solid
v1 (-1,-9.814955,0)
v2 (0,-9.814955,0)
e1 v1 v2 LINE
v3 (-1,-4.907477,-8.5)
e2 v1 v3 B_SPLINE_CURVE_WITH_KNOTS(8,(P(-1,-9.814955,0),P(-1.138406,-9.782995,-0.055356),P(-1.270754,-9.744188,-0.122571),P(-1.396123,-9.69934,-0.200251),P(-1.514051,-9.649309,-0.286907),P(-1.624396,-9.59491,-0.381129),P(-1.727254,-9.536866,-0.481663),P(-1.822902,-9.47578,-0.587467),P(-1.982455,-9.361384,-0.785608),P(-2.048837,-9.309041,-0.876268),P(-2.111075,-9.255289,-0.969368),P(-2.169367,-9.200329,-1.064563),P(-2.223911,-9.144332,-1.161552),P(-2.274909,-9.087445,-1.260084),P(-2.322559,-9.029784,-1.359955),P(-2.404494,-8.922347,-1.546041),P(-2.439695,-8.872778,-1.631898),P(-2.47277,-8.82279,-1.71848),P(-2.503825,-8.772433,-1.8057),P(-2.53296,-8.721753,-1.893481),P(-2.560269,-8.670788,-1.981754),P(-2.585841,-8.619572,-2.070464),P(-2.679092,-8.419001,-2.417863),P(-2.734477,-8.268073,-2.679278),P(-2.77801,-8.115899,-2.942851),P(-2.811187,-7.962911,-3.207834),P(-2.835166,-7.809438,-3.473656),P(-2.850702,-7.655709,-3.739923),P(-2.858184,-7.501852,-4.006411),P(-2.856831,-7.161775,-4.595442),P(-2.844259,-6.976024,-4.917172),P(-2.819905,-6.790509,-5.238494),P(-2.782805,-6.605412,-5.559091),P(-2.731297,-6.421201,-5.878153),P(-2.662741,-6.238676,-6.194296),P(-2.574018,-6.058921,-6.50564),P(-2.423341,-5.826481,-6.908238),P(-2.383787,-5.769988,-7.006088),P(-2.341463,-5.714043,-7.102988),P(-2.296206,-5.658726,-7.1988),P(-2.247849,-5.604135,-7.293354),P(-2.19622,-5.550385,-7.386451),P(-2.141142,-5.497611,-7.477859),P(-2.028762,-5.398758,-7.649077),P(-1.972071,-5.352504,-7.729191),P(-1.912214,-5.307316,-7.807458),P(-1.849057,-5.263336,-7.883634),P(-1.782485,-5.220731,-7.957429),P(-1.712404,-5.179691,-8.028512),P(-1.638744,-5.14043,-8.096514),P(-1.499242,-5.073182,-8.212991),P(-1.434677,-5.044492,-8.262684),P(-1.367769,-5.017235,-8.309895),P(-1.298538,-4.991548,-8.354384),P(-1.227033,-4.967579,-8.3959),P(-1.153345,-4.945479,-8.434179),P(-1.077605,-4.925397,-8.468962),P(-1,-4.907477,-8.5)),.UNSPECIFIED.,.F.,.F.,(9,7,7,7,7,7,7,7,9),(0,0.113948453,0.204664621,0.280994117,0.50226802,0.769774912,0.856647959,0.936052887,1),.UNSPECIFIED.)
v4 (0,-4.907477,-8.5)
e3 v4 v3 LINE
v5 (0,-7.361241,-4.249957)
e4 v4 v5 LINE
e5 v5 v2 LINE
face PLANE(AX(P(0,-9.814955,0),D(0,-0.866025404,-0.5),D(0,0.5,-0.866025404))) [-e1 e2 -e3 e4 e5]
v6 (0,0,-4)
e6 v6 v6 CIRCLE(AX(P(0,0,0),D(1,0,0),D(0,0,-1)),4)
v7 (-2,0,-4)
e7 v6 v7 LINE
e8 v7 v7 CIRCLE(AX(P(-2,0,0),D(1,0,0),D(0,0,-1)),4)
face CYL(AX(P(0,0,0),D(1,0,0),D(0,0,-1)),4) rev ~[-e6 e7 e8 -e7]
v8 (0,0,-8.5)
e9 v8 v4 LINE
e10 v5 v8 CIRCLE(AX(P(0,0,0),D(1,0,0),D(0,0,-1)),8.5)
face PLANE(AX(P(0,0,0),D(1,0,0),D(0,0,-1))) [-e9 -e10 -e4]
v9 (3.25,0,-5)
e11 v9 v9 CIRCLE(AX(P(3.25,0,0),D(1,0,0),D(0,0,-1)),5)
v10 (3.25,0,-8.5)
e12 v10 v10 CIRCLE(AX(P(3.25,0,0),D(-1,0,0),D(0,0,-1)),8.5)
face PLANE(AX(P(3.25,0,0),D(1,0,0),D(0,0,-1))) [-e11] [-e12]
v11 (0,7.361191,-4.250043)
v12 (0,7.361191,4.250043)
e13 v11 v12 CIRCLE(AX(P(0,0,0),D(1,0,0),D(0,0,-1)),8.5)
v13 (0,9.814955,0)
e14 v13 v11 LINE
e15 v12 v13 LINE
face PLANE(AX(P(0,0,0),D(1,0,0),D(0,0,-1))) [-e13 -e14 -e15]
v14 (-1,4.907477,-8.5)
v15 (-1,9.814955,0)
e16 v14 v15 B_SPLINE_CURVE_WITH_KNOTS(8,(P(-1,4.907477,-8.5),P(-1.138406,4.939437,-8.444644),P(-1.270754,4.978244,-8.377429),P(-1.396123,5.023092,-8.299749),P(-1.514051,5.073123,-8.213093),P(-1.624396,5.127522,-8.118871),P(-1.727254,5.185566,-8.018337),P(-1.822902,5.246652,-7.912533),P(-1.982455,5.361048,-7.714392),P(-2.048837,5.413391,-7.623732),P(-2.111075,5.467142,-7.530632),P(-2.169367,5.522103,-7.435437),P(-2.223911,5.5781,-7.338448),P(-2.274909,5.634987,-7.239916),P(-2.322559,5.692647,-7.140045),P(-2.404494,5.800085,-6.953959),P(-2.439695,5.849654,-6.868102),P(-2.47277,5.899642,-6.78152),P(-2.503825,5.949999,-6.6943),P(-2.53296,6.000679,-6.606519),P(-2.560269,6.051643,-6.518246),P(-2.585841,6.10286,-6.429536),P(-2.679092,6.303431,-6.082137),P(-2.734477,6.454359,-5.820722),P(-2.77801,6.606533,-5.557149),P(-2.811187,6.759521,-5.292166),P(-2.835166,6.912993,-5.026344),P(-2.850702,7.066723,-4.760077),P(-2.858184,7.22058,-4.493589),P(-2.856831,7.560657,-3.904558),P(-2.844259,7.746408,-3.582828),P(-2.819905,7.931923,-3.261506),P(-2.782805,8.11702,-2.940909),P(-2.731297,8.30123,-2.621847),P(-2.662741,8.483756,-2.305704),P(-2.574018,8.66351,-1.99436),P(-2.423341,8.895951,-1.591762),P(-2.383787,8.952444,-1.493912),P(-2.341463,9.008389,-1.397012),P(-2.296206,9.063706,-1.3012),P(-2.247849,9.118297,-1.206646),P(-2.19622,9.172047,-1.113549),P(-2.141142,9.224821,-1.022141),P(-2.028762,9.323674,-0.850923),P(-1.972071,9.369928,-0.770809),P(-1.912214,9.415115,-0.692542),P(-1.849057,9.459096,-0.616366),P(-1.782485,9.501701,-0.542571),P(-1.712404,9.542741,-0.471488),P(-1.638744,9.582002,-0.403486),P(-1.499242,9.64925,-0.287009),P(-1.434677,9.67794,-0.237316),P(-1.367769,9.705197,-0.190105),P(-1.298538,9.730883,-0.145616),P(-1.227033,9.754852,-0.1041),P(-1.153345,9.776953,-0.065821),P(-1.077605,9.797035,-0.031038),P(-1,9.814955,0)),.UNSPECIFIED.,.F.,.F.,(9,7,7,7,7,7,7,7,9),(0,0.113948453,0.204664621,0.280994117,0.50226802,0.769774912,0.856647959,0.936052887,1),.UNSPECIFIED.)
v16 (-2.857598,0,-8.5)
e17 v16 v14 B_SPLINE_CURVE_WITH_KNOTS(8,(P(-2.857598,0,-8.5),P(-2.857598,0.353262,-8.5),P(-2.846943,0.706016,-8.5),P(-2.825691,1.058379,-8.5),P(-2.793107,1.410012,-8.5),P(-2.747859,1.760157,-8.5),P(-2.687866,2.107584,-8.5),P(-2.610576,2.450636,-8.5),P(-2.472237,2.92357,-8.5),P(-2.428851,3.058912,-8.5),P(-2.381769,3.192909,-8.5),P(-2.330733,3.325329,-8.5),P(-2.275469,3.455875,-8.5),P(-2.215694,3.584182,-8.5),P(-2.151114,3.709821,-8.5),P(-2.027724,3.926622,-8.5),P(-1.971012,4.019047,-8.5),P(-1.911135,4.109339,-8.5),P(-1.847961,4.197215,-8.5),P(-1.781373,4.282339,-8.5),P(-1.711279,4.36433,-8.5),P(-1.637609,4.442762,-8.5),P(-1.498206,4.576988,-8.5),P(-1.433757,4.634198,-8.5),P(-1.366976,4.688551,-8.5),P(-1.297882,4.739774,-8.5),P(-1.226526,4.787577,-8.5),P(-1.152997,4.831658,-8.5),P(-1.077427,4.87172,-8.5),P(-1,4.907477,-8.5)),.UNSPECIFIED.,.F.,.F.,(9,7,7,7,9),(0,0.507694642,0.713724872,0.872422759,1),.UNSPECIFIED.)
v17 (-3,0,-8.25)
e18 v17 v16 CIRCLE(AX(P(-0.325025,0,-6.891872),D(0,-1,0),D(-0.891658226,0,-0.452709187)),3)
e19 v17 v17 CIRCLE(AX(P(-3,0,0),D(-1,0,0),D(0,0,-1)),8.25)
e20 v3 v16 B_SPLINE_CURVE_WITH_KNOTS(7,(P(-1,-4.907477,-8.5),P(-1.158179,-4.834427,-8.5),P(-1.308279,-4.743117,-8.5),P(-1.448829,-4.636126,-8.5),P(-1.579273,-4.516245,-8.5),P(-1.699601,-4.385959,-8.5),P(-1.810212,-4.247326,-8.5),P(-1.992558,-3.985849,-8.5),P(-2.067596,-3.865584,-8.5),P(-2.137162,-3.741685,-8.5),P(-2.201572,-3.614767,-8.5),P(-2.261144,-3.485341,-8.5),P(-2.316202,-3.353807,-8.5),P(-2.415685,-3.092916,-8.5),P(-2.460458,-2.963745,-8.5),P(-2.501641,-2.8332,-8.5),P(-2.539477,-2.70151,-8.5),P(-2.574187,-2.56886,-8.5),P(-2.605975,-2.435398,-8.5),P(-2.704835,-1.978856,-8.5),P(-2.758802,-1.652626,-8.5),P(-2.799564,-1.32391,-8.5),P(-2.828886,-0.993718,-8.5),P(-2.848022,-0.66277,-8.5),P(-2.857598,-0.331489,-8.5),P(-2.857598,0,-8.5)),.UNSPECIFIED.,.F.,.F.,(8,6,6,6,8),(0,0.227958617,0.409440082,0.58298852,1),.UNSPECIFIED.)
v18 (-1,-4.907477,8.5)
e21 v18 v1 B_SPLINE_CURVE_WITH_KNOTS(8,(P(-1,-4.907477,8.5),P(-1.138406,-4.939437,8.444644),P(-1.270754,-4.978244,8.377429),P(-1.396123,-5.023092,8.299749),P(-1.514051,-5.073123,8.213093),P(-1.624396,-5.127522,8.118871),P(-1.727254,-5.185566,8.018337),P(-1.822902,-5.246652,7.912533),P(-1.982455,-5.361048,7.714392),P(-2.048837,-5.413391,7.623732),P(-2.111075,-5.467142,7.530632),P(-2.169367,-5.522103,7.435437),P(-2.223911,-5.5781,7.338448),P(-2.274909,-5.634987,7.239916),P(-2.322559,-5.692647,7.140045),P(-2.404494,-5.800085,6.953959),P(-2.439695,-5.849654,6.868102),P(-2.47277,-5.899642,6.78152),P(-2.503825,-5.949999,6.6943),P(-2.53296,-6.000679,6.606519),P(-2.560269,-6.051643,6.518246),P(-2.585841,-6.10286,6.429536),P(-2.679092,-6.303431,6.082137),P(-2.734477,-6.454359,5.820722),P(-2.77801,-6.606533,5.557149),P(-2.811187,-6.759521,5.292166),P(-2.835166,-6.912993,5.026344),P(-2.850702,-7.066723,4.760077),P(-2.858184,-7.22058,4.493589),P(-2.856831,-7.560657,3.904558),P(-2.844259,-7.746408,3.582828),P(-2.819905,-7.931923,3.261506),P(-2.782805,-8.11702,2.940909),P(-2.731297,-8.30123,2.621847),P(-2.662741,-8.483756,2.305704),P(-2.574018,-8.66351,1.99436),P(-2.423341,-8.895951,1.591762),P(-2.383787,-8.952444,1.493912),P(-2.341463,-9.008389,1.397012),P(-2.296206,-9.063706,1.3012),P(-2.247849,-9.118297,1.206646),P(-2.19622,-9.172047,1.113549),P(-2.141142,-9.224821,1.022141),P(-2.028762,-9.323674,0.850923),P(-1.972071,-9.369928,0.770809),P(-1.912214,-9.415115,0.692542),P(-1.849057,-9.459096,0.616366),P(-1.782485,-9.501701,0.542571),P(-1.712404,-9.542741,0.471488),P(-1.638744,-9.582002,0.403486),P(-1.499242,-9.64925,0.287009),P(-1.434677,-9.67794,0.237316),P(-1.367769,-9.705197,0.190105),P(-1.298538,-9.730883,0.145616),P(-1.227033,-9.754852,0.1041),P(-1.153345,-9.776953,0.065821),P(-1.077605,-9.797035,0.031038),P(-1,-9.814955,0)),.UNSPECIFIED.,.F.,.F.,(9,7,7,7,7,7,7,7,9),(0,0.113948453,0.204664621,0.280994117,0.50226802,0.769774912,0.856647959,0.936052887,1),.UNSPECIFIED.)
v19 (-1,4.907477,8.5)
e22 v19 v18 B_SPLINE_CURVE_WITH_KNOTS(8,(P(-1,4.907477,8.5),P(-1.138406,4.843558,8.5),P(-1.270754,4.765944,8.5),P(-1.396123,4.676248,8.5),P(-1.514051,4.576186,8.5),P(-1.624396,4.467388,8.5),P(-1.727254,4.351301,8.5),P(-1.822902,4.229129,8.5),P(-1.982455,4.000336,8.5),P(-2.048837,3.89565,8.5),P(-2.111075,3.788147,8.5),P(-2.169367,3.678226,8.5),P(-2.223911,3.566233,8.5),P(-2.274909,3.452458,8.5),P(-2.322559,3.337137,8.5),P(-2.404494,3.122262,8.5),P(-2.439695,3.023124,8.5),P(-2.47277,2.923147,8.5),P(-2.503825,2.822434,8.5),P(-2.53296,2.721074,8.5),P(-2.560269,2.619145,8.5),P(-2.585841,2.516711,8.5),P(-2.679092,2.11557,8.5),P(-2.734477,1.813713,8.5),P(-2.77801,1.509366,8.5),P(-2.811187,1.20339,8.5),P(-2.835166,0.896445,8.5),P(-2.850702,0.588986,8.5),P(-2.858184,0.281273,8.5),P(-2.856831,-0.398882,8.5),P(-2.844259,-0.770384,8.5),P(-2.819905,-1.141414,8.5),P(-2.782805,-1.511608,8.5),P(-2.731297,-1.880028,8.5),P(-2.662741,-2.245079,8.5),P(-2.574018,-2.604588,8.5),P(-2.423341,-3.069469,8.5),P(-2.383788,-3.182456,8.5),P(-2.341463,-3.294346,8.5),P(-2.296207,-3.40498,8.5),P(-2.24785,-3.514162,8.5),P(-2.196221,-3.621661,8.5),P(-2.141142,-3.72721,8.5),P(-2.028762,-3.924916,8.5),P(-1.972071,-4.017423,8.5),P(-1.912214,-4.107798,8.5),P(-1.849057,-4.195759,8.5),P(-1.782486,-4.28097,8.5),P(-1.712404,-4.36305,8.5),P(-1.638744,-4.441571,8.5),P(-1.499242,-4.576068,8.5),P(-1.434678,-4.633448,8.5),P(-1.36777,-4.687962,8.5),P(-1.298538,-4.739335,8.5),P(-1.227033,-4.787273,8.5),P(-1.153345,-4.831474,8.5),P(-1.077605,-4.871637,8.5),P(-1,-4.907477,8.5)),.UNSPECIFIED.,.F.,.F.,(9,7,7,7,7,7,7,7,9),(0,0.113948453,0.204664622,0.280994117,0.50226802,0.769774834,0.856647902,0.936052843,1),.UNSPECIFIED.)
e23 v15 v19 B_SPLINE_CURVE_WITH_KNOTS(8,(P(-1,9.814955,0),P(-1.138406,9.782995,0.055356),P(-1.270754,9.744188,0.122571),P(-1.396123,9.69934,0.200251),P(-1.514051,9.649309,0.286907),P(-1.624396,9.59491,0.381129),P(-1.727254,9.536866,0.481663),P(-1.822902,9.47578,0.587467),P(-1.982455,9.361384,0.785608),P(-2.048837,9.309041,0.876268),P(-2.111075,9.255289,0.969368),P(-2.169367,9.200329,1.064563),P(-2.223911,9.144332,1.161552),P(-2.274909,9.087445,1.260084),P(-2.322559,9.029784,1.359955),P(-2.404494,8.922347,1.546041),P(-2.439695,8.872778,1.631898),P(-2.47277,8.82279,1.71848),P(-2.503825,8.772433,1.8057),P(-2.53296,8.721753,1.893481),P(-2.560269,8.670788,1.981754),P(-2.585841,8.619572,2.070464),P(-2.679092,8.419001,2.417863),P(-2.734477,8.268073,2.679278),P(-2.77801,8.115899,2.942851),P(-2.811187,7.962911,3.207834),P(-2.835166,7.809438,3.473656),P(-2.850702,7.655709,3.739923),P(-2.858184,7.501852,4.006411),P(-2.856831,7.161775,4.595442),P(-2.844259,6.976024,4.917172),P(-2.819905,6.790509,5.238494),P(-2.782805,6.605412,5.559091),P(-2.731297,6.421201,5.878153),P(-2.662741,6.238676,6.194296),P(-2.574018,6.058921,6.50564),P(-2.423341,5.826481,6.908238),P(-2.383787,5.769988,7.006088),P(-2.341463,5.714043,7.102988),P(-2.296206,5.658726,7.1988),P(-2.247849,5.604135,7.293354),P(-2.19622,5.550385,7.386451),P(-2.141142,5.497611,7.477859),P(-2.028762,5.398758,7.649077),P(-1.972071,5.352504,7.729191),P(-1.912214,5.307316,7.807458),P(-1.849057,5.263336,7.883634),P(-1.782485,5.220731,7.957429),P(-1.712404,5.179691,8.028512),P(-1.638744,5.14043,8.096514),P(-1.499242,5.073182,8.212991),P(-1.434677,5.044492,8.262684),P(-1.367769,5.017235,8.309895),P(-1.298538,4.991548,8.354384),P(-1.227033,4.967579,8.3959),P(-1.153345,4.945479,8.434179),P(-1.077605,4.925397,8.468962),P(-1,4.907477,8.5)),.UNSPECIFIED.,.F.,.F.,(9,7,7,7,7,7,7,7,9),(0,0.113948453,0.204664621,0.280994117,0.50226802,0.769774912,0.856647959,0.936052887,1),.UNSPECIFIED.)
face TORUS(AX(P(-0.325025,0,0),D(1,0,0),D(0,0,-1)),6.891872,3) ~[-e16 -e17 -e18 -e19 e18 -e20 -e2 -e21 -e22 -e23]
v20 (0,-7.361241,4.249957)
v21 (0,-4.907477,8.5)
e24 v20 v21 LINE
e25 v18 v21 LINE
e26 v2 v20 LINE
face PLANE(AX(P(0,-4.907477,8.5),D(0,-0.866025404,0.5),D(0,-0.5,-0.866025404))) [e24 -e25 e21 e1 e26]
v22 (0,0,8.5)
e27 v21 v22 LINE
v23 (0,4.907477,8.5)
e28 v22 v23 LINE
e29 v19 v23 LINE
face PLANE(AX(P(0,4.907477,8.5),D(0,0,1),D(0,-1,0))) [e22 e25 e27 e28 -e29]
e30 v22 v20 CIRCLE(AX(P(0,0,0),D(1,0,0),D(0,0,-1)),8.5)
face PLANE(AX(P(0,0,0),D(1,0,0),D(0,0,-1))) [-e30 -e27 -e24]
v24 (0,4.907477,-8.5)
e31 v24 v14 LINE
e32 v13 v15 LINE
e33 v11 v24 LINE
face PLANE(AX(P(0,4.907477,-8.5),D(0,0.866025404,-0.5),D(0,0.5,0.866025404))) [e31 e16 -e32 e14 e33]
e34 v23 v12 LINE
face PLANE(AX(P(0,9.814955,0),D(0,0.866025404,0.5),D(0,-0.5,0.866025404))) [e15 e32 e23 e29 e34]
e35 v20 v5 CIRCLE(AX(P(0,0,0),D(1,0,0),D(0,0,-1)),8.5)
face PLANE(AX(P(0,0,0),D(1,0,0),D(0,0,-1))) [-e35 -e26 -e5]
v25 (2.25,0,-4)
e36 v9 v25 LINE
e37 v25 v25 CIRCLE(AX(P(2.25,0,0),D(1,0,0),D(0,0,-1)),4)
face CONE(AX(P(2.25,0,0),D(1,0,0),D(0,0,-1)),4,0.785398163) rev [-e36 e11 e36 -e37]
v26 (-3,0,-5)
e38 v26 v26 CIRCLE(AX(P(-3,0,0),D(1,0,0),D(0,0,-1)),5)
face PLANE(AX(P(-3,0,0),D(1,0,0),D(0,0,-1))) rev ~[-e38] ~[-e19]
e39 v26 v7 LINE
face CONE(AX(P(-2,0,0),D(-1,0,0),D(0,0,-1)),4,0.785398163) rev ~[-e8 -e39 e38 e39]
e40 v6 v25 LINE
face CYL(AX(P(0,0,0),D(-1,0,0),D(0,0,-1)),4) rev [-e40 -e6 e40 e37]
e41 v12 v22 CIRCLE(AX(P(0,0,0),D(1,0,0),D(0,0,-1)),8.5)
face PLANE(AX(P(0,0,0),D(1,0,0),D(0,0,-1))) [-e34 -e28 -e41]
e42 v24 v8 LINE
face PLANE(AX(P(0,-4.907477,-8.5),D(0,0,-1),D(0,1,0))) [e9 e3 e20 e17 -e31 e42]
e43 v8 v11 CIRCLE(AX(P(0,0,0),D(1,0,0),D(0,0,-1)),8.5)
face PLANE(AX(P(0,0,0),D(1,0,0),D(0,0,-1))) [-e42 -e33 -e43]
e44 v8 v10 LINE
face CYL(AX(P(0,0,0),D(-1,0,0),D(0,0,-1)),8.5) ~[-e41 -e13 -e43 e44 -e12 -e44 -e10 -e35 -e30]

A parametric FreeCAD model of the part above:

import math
import FreeCAD as App
import Part
import Sketcher

V = App.Vector
Q = App.Units.Quantity


def edges_at(feature, points):
    """Names of the edges that pass closest to the given points."""
    edges = feature.Shape.Edges
    near = lambda p: min(range(len(edges)), key=lambda i: edges[i].distToShape(Part.Vertex(*p))[0])
    return sorted({f"Edge{near(p) + 1}" for p in points})

doc = App.newDocument("Part")
body = doc.addObject("PartDesign::Body", "Body")

sketch1 = body.newObject("Sketcher::SketchObject", "Sketch")
sketch1.AttachmentSupport = (doc.getObject("YZ_Plane"), [""])
sketch1.MapMode = "FlatFace"
sketch1.addGeometry([
    Part.LineSegment(V(9.8, 0, 0), V(4.9, 8.5, 0)),
    Part.LineSegment(V(4.9, 8.5, 0), V(-4.9, 8.5, 0)),
    Part.LineSegment(V(-4.9, 8.5, 0), V(-9.8, 0, 0)),
    Part.LineSegment(V(-9.8, 0, 0), V(-4.9, -8.5, 0)),
    Part.LineSegment(V(-4.9, -8.5, 0), V(4.9, -8.5, 0)),
    Part.LineSegment(V(4.9, -8.5, 0), V(9.8, 0, 0)),
    Part.Circle(V(0, 0, 0), V(0, 0, 1), 4),
], False)
sketch1.addConstraint([
    Sketcher.Constraint("Coincident", 0, 2, 1, 1),
    Sketcher.Constraint("Coincident", 1, 2, 2, 1),
    Sketcher.Constraint("Coincident", 2, 2, 3, 1),
    Sketcher.Constraint("Coincident", 3, 2, 4, 1),
    Sketcher.Constraint("Coincident", 4, 2, 5, 1),
    Sketcher.Constraint("Coincident", 5, 2, 0, 1),
    Sketcher.Constraint("Horizontal", 1),
    Sketcher.Constraint("Horizontal", 4),
    Sketcher.Constraint("Coincident", 6, 3, -1, 1),
    Sketcher.Constraint("Symmetric", 0, 2, 3, 2, -1, 1),
    Sketcher.Constraint("Symmetric", 2, 2, 5, 2, -1, 1),
    Sketcher.Constraint("PointOnObject", 2, 2, -1),
    Sketcher.Constraint("Parallel", 2, 5),
    Sketcher.Constraint("Vertical", 1, 2, 3, 2),
    Sketcher.Constraint("Diameter", 6, Q("8 mm")),
    Sketcher.Constraint("Angle", 0, Q("120 deg")),
    Sketcher.Constraint("DistanceY", 3, 2, 1, 2, Q("17 mm")),
    Sketcher.Constraint("DistanceX", 1, 2, 1, 1, Q("9.814955 mm")),
])
pad1 = body.newObject("PartDesign::Pad", "Pad")
pad1.Profile = sketch1
pad1.Type = "TwoLengths"
pad1.Length = 3.25
pad1.Length2 = 3

sketch2 = body.newObject("Sketcher::SketchObject", "Sketch001")
sketch2.AttachmentSupport = (doc.getObject("YZ_Plane"), [""])
sketch2.MapMode = "FlatFace"
sketch2.addGeometry([
    Part.LineSegment(V(13, 12, 0), V(-13, 12, 0)),
    Part.LineSegment(V(-13, 12, 0), V(-13, -12, 0)),
    Part.LineSegment(V(-13, -12, 0), V(13, -12, 0)),
    Part.LineSegment(V(13, -12, 0), V(13, 12, 0)),
    Part.Circle(V(0, 0, 0), V(0, 0, 1), 8),
], False)
sketch2.addConstraint([
    Sketcher.Constraint("Coincident", 0, 2, 1, 1),
    Sketcher.Constraint("Coincident", 1, 2, 2, 1),
    Sketcher.Constraint("Coincident", 2, 2, 3, 1),
    Sketcher.Constraint("Coincident", 3, 2, 0, 1),
    Sketcher.Constraint("Horizontal", 0),
    Sketcher.Constraint("Vertical", 1),
    Sketcher.Constraint("Horizontal", 2),
    Sketcher.Constraint("Vertical", 3),
    Sketcher.Constraint("Coincident", 4, 3, -1, 1),
    Sketcher.Constraint("Symmetric", 0, 2, 2, 2, -1, 1),
    Sketcher.Constraint("Diameter", 4, Q("17 mm")),
    Sketcher.Constraint("DistanceX", 0, 2, 0, 1, Q("26.972 mm")),
    Sketcher.Constraint("DistanceY", 1, 2, 1, 1, Q("24.342 mm")),
])
pocket1 = body.newObject("PartDesign::Pocket", "Pocket")
pocket1.Profile = sketch2
pocket1.Type = "ThroughAll"
pocket1.Reversed = True

sketch3 = body.newObject("Sketcher::SketchObject", "Sketch002")
sketch3.AttachmentSupport = (doc.getObject("XY_Plane"), [""])
sketch3.MapMode = "FlatFace"
sketch3.addGeometry([
    Part.LineSegment(V(-1, 9.8, 0), V(-3, 9.8, 0)),
    Part.LineSegment(V(-3, 9.8, 0), V(-3, 8.2, 0)),
    Part.ArcOfCircle(Part.Circle(V(-0.3, 6.9, 0), V(0, 0, 1), 3), math.radians(103), math.radians(153)),
], False)
sketch3.addConstraint([
    Sketcher.Constraint("Coincident", 0, 2, 1, 1),
    Sketcher.Constraint("Coincident", 1, 2, 2, 2),
    Sketcher.Constraint("Coincident", 2, 1, 0, 1),
    Sketcher.Constraint("Horizontal", 0),
    Sketcher.Constraint("Vertical", 1),
    Sketcher.Constraint("Radius", 2, Q("3 mm")),
    Sketcher.Constraint("DistanceX", 0, 2, 0, 1, Q("2 mm")),
    Sketcher.Constraint("DistanceX", 0, 2, -1, 1, Q("3 mm")),
    Sketcher.Constraint("DistanceY", -1, 1, 1, 2, Q("8.25 mm")),
    Sketcher.Constraint("DistanceY", 1, 2, 1, 1, Q("1.564955 mm")),
])
groove = body.newObject("PartDesign::Groove", "Groove")
groove.Profile = sketch3
groove.ReferenceAxis = (sketch3, ["H_Axis"])
groove.Angle = 360
doc.recompute()

chamfer = body.newObject("PartDesign::Chamfer", "Chamfer")
chamfer.Base = (groove, edges_at(groove, [(3.25, 0, 4), (-3, 0, 4)]))
chamfer.Size = 1

doc.recompute()
